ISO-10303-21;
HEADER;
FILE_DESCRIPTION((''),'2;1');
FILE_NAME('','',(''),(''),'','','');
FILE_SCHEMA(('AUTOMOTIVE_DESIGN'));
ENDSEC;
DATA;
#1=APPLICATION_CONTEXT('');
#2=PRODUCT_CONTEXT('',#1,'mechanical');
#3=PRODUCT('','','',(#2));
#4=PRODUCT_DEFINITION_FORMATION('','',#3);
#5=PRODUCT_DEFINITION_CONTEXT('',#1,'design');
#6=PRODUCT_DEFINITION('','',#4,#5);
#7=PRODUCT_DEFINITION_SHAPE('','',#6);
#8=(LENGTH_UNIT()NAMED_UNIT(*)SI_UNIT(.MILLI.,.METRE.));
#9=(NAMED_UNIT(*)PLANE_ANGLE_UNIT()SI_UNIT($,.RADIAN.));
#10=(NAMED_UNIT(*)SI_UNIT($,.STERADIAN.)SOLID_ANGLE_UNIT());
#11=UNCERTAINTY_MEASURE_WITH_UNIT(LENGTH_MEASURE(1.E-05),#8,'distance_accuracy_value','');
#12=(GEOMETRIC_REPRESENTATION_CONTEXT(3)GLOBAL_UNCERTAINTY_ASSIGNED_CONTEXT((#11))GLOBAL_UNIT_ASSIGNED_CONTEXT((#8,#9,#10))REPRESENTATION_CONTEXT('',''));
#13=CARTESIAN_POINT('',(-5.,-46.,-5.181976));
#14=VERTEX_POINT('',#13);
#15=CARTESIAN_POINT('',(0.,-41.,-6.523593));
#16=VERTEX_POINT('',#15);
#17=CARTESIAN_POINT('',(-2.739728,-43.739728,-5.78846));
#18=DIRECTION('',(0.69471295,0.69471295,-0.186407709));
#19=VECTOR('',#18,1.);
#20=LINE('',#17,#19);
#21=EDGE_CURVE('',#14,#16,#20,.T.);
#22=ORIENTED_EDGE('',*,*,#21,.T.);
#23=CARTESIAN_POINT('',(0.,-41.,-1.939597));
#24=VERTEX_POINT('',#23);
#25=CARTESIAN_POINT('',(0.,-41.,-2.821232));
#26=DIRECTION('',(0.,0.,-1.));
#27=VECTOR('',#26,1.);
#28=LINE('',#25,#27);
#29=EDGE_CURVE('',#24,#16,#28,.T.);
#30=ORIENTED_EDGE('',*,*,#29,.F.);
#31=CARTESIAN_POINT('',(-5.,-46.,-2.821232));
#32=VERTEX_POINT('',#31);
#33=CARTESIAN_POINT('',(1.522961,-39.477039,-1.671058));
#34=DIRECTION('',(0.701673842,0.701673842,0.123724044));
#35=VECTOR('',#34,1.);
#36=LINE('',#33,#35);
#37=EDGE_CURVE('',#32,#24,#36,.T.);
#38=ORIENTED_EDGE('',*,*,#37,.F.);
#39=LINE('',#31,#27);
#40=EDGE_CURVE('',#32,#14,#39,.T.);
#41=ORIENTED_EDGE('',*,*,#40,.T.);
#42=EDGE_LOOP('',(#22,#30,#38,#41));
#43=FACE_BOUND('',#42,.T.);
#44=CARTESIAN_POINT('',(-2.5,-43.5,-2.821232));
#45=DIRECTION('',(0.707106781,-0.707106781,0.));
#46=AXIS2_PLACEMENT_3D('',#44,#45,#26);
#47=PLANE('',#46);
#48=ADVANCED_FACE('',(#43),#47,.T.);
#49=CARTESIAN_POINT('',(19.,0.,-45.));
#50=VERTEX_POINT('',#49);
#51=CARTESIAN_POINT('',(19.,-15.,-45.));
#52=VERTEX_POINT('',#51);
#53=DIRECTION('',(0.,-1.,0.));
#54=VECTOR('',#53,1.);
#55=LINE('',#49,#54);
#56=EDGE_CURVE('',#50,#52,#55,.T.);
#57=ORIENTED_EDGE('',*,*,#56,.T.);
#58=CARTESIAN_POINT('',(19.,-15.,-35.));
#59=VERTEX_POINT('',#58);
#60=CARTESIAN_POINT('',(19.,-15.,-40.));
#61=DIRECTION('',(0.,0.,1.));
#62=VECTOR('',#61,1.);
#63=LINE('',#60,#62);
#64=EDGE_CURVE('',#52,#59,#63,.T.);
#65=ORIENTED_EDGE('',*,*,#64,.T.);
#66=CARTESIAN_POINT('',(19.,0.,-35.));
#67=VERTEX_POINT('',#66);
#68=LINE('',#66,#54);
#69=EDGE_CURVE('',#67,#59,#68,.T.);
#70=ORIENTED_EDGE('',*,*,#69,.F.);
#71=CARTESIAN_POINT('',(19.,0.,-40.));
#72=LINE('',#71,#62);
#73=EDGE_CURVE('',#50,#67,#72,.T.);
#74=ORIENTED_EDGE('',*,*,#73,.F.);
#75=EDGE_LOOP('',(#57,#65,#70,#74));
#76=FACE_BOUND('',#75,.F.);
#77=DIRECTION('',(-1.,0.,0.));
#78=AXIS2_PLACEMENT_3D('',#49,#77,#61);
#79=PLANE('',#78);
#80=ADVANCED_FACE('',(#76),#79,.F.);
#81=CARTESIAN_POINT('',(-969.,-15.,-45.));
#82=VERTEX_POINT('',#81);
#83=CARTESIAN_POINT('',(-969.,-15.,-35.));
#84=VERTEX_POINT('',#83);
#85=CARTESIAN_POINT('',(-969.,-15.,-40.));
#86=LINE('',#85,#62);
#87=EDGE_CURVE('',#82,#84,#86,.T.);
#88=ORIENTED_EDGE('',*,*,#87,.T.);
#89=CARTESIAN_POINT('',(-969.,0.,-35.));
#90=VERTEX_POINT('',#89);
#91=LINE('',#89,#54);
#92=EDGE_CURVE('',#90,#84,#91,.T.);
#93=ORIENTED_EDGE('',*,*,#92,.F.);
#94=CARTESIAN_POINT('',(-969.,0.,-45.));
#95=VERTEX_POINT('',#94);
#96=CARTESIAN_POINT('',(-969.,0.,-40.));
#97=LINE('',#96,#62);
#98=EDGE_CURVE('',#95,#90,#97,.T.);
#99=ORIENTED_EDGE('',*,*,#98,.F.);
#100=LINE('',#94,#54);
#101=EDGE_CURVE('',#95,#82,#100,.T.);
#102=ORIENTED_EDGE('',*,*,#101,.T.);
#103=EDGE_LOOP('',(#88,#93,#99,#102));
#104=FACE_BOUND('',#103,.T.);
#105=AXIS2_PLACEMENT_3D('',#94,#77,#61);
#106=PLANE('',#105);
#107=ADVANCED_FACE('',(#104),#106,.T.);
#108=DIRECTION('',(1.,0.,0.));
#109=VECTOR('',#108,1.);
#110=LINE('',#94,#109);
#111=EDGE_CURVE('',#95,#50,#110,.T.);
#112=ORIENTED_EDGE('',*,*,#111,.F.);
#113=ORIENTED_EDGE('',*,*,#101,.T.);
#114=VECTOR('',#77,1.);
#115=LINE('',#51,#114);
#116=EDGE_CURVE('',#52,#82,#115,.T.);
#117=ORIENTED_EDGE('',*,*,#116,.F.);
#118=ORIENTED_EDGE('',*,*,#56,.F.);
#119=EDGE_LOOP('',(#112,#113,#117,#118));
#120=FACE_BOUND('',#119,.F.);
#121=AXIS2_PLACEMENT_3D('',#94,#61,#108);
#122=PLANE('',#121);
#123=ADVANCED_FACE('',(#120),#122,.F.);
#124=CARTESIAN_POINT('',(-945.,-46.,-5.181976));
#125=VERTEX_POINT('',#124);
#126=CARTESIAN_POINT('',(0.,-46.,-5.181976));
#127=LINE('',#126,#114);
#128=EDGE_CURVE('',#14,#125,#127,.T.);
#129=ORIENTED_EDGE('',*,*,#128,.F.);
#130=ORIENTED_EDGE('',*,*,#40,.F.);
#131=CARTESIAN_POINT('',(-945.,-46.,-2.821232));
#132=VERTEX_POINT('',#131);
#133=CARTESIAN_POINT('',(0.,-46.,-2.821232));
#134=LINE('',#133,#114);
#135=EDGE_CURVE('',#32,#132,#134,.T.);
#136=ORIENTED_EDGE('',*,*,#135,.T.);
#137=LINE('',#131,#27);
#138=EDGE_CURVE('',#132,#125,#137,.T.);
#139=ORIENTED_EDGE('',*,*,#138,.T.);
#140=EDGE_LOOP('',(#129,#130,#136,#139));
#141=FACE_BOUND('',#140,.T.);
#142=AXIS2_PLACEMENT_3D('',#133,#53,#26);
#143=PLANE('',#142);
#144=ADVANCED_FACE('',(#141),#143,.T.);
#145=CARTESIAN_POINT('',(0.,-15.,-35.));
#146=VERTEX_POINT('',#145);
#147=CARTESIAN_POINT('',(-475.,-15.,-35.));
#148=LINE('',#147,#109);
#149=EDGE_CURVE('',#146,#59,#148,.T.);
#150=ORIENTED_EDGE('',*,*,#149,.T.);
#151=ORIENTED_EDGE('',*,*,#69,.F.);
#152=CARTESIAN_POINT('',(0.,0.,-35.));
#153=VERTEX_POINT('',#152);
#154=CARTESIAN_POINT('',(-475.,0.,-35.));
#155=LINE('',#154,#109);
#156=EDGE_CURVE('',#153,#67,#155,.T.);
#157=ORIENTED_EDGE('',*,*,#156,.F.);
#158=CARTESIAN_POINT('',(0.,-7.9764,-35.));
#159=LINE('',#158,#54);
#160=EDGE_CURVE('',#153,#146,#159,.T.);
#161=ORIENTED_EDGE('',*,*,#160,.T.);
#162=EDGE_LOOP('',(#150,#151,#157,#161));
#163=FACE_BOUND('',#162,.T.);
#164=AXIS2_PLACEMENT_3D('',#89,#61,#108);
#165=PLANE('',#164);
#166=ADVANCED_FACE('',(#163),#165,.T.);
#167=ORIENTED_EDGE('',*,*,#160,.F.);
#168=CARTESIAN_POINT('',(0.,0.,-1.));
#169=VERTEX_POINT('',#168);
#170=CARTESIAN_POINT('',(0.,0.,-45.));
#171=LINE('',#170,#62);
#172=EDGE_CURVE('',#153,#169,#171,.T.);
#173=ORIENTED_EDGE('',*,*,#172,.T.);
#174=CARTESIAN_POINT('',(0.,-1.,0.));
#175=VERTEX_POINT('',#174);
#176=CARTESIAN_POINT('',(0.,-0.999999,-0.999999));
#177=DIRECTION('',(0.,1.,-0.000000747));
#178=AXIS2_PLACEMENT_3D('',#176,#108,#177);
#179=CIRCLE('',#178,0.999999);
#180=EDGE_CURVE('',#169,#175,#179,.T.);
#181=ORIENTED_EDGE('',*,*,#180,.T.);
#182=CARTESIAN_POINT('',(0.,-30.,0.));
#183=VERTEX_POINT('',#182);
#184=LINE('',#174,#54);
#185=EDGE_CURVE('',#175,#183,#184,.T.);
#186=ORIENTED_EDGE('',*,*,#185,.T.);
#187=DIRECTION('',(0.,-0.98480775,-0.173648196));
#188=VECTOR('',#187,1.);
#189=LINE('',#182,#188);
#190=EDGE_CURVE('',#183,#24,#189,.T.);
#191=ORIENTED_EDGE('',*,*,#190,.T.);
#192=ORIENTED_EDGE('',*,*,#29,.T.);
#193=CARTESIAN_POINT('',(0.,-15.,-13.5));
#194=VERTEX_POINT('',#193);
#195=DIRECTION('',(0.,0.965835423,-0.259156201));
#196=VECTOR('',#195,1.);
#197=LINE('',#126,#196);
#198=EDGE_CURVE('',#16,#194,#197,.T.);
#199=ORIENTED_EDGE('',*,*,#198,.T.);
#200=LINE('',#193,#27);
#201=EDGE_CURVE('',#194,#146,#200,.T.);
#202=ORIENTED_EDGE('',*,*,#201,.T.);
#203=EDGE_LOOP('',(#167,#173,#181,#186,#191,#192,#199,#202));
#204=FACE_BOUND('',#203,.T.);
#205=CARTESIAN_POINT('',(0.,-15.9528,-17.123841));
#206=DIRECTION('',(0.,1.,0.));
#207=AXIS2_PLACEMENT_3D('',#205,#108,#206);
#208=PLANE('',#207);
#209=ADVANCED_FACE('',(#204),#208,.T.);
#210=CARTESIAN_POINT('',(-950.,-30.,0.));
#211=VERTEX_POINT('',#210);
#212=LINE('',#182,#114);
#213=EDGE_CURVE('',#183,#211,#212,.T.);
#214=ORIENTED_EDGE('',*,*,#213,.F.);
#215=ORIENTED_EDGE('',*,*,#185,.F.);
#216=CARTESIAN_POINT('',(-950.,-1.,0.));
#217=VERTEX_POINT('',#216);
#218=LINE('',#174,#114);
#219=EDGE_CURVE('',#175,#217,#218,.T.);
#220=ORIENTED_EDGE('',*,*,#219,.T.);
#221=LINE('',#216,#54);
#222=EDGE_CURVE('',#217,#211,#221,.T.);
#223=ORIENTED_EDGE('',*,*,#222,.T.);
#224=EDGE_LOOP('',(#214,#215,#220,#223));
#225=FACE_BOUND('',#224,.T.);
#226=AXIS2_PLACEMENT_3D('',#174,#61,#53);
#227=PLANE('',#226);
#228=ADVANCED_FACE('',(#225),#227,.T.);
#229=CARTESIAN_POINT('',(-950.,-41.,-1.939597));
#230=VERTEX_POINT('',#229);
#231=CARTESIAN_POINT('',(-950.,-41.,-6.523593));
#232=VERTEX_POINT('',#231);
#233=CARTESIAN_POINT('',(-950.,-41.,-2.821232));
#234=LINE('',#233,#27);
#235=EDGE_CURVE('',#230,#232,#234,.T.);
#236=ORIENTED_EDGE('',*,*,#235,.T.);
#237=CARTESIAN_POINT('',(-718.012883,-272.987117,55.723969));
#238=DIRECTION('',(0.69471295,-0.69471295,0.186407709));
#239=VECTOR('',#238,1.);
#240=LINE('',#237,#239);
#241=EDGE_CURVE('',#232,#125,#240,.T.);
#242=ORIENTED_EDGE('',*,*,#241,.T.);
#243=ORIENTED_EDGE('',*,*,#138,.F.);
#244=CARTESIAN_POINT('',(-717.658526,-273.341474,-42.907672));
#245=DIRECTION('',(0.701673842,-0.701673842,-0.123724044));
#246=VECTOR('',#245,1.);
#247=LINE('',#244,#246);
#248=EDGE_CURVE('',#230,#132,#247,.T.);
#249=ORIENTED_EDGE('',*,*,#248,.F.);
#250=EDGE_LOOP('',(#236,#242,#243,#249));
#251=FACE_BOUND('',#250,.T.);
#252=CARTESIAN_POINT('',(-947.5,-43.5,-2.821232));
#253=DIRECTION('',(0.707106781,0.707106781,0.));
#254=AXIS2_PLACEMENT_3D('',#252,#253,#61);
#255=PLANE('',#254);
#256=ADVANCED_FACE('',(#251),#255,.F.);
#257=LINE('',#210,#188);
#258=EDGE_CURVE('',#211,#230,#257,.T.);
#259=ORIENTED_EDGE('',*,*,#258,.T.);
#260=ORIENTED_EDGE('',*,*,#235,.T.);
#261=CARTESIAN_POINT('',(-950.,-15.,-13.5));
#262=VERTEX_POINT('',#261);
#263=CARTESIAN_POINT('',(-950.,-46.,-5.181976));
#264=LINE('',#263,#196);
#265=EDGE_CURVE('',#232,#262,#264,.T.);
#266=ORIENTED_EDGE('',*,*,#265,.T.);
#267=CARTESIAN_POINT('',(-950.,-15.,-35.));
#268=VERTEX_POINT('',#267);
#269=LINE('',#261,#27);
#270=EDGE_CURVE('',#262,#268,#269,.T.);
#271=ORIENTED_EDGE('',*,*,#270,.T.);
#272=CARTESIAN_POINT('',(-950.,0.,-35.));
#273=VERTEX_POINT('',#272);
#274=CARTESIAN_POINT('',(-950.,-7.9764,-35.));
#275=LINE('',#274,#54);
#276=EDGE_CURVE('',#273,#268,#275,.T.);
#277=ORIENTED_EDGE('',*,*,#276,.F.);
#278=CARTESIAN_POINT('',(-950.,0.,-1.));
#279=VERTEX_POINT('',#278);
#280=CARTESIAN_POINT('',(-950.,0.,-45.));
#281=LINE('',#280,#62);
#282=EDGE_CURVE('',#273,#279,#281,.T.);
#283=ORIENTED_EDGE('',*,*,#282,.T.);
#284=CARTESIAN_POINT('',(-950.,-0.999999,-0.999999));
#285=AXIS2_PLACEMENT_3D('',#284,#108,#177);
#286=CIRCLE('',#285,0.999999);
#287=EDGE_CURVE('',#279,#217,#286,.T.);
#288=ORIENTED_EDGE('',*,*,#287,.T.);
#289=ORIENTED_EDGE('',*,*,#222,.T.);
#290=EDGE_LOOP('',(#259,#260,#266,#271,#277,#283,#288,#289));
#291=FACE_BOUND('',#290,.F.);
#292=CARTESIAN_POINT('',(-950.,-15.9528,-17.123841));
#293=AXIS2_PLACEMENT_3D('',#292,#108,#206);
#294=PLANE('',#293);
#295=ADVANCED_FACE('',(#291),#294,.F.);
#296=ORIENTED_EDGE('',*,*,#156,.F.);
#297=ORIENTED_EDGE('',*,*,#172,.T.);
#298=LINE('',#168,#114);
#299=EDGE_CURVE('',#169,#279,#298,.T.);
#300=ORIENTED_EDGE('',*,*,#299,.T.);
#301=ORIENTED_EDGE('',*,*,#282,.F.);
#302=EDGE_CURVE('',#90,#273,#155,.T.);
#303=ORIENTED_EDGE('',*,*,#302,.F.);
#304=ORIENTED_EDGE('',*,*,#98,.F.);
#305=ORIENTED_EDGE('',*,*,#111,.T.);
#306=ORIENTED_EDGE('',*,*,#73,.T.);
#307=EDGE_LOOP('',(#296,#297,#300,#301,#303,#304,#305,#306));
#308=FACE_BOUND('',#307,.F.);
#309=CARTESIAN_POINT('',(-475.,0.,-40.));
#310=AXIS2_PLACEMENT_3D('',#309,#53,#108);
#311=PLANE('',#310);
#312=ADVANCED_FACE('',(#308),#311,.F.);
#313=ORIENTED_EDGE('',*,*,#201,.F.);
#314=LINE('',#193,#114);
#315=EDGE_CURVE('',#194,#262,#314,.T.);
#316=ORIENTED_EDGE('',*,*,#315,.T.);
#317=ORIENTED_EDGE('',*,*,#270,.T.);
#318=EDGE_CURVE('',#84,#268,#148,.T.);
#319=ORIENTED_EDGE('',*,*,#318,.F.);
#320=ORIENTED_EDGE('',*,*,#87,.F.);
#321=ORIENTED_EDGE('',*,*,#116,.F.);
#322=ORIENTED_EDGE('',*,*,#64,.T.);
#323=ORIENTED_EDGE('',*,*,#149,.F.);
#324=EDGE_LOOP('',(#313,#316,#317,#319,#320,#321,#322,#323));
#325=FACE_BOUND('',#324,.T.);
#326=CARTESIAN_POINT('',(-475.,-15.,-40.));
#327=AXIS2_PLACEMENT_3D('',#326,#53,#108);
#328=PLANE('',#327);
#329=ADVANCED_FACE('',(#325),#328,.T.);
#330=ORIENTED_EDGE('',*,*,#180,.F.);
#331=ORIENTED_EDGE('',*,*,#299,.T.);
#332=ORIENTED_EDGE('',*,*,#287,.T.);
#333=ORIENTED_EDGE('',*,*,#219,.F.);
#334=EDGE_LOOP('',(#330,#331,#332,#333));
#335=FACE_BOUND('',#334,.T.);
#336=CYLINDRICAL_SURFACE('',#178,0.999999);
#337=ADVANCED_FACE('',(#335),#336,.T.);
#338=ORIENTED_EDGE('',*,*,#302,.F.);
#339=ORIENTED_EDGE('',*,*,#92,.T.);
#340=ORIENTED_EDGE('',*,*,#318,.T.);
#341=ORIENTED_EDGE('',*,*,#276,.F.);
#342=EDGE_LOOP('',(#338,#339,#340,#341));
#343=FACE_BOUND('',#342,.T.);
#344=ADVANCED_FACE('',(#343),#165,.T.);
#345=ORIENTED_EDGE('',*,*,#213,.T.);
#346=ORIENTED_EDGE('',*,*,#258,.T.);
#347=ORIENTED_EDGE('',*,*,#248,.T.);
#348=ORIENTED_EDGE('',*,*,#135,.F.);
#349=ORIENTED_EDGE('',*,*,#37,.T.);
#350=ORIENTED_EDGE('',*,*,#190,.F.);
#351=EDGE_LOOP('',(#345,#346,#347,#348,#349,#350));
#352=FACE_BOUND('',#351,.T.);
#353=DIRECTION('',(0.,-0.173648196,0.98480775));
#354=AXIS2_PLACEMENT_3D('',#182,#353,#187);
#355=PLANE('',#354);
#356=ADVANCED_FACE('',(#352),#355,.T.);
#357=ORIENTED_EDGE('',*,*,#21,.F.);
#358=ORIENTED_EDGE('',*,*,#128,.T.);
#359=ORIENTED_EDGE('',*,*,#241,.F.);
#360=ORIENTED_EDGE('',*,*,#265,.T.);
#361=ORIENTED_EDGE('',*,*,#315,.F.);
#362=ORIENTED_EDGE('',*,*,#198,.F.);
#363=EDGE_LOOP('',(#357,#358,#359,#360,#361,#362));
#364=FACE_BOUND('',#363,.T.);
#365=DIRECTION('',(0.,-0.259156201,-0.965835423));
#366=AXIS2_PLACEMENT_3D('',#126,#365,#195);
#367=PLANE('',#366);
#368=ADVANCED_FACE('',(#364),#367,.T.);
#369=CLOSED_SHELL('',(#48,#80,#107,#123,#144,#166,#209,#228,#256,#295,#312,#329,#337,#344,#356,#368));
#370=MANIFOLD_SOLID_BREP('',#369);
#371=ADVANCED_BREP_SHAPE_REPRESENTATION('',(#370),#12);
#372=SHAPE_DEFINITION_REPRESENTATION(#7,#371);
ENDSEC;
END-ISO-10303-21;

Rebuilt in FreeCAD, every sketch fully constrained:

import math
import FreeCAD as App
import Part
import Sketcher
Q = App.Units.Quantity


def edges_at(feature, points):
    """Names of the edges that pass closest to the given points."""
    edges = feature.Shape.Edges
    near = lambda p: min(range(len(edges)), key=lambda i: edges[i].distToShape(Part.Vertex(*p))[0])
    return sorted({f"Edge{near(p) + 1}" for p in points})


def add_polygon(sketch, points):
    """Adds a closed chain of lines whose ends are joined by coincident constraints."""
    first, n = sketch.GeometryCount, len(points)
    for a, b in zip(points, points[1:] + points[:1]):
        sketch.addGeometry(Part.LineSegment(App.Vector(*a, 0), App.Vector(*b, 0)), False)
    for i in range(n):
        sketch.addConstraint(Sketcher.Constraint("Coincident", first + i, 2, first + (i + 1) % n, 1))

doc = App.newDocument("Part")
body = doc.addObject("PartDesign::Body", "Body")

# Sketch on YZ plane
sketch1 = doc.addObject("Sketcher::SketchObject", "Sketch")
body.addObject(sketch1)
sketch1.AttachmentSupport = (doc.YZ_Plane, [""])
sketch1.MapMode = "FlatFace"
sketch1.addGeometry(Part.ArcOfCircle(Part.Circle(App.Vector(-1, -1, 0), App.Vector(0, 0, 1), 1), math.radians(0), math.radians(90)), False)
sketch1.addGeometry(Part.LineSegment(App.Vector(-1, 0, 0), App.Vector(-30, 0, 0)), False)
sketch1.addGeometry(Part.LineSegment(App.Vector(-30, 0, 0), App.Vector(-46, -2.8, 0)), False)
sketch1.addGeometry(Part.LineSegment(App.Vector(-46, -2.8, 0), App.Vector(-46, -5.2, 0)), False)
sketch1.addGeometry(Part.LineSegment(App.Vector(-46, -5.2, 0), App.Vector(-15, -13.5, 0)), False)
sketch1.addGeometry(Part.LineSegment(App.Vector(-15, -13.5, 0), App.Vector(-15, -45, 0)), False)
sketch1.addGeometry(Part.LineSegment(App.Vector(-15, -45, 0), App.Vector(0, -45, 0)), False)
sketch1.addGeometry(Part.LineSegment(App.Vector(0, -45, 0), App.Vector(0, -1, 0)), False)
sketch1.addConstraint(Sketcher.Constraint("Tangent", 0, 2, 1, 1))
sketch1.addConstraint(Sketcher.Constraint("Coincident", 1, 2, 2, 1))
sketch1.addConstraint(Sketcher.Constraint("Coincident", 2, 2, 3, 1))
sketch1.addConstraint(Sketcher.Constraint("Coincident", 3, 2, 4, 1))
sketch1.addConstraint(Sketcher.Constraint("Coincident", 4, 2, 5, 1))
sketch1.addConstraint(Sketcher.Constraint("Coincident", 5, 2, 6, 1))
sketch1.addConstraint(Sketcher.Constraint("Coincident", 6, 2, 7, 1))
sketch1.addConstraint(Sketcher.Constraint("Tangent", 7, 2, 0, 1))
sketch1.addConstraint(Sketcher.Constraint("Horizontal", 1))
sketch1.addConstraint(Sketcher.Constraint("Vertical", 3))
sketch1.addConstraint(Sketcher.Constraint("Vertical", 5))
sketch1.addConstraint(Sketcher.Constraint("Horizontal", 6))
sketch1.addConstraint(Sketcher.Constraint("Vertical", 7))
sketch1.addConstraint(Sketcher.Constraint("PointOnObject", 0, 2, -1))
sketch1.addConstraint(Sketcher.Constraint("PointOnObject", 6, 2, -2))
sketch1.addConstraint(Sketcher.Constraint("Radius", 0, Q("0.999999 mm")))
sketch1.addConstraint(Sketcher.Constraint("DistanceX", 1, 2, 1, 1, Q("29 mm")))
sketch1.addConstraint(Sketcher.Constraint("DistanceX", 6, 1, 6, 2, Q("15 mm")))
sketch1.addConstraint(Sketcher.Constraint("DistanceY", 7, 1, 7, 2, Q("44 mm")))
sketch1.addConstraint(Sketcher.Constraint("Angle", 2, Q("-169.999999 deg")))
sketch1.addConstraint(Sketcher.Constraint("DistanceY", 5, 2, 5, 1, Q("31.5 mm")))
sketch1.addConstraint(Sketcher.Constraint("DistanceX", 2, 2, -1, 1, Q("46 mm")))
sketch1.addConstraint(Sketcher.Constraint("Angle", 4, Q("-15.02 deg")))
pad1 = doc.addObject("PartDesign::Pad", "Pad")
body.addObject(pad1)
pad1.Profile = sketch1
pad1.Length = 950
pad1.Reversed = True

# Sketch on XZ plane
sketch2 = doc.addObject("Sketcher::SketchObject", "Sketch001")
body.addObject(sketch2)
sketch2.AttachmentSupport = (doc.XZ_Plane, [""])
sketch2.MapMode = "FlatFace"
add_polygon(sketch2, [(-969, -35), (-969, -45), (19, -45), (19, -35)])  # lines 0-3
sketch2.addConstraint(Sketcher.Constraint("Vertical", 0))
sketch2.addConstraint(Sketcher.Constraint("Horizontal", 1))
sketch2.addConstraint(Sketcher.Constraint("Vertical", 2))
sketch2.addConstraint(Sketcher.Constraint("Horizontal", 3))
sketch2.addConstraint(Sketcher.Constraint("DistanceX", 1, 1, 1, 2, Q("988 mm")))
sketch2.addConstraint(Sketcher.Constraint("DistanceY", 0, 2, 0, 1, Q("10 mm")))
sketch2.addConstraint(Sketcher.Constraint("DistanceX", 0, 2, -1, 1, Q("969 mm")))
sketch2.addConstraint(Sketcher.Constraint("DistanceY", 0, 2, -1, 1, Q("45 mm")))
pad2 = doc.addObject("PartDesign::Pad", "Pad001")
body.addObject(pad2)
pad2.Profile = sketch2
pad2.Length = 15
doc.recompute()

chamfer = doc.addObject("PartDesign::Chamfer", "Chamfer")
body.addObject(chamfer)
chamfer.Base = (pad2, edges_at(pad2, [(0, -46, -4.002), (-950, -46, -4.002)]))
chamfer.Size = 5

doc.recompute()
